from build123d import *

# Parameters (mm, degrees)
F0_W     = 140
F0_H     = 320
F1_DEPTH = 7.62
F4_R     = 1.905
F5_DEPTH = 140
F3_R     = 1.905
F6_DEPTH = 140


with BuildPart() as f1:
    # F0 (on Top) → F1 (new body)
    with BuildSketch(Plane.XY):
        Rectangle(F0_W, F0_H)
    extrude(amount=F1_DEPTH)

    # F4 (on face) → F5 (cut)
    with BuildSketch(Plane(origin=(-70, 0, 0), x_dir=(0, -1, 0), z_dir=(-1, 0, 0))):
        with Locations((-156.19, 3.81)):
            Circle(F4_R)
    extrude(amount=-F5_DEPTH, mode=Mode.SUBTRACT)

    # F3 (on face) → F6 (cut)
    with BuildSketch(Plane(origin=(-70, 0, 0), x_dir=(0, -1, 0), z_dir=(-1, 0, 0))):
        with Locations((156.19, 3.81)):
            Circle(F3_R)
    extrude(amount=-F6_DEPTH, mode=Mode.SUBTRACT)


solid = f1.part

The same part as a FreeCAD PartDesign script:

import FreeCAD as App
import Part
import Sketcher

V = App.Vector
Q = App.Units.Quantity

doc = App.newDocument("Part")
body = doc.addObject("PartDesign::Body", "Body")

sketch1 = body.newObject("Sketcher::SketchObject", "Sketch")
sketch1.AttachmentSupport = (doc.getObject("XY_Plane"), [""])
sketch1.MapMode = "FlatFace"
sketch1.addGeometry([
    Part.LineSegment(V(-70, 160, 0), V(-70, -160, 0)),
    Part.LineSegment(V(-70, -160, 0), V(70, -160, 0)),
    Part.LineSegment(V(70, -160, 0), V(70, 160, 0)),
    Part.LineSegment(V(70, 160, 0), V(-70, 160, 0)),
], False)
sketch1.addConstraint([
    Sketcher.Constraint("Coincident", 0, 2, 1, 1),
    Sketcher.Constraint("Coincident", 1, 2, 2, 1),
    Sketcher.Constraint("Coincident", 2, 2, 3, 1),
    Sketcher.Constraint("Coincident", 3, 2, 0, 1),
    Sketcher.Constraint("Vertical", 0),
    Sketcher.Constraint("Horizontal", 1),
    Sketcher.Constraint("Vertical", 2),
    Sketcher.Constraint("Horizontal", 3),
    Sketcher.Constraint("Symmetric", 0, 2, 2, 2, -1, 1),
    Sketcher.Constraint("DistanceX", 1, 1, 1, 2, Q("140 mm")),
    Sketcher.Constraint("DistanceY", 0, 2, 0, 1, Q("320 mm")),
])
pad1 = body.newObject("PartDesign::Pad", "Pad")
pad1.Profile = sketch1
pad1.Length = 7.62

sketch2 = body.newObject("Sketcher::SketchObject", "Sketch001")
sketch2.AttachmentSupport = (doc.getObject("YZ_Plane"), [""])
sketch2.MapMode = "FlatFace"
sketch2.AttachmentOffset = App.Placement(V(0, 0, -70), App.Rotation())
sketch2.addGeometry(Part.Circle(V(156.19, 3.81, 0), V(0, 0, 1), 1.905), False)
sketch2.addConstraint([
    Sketcher.Constraint("Diameter", 0, Q("3.81 mm")),
    Sketcher.Constraint("DistanceX", -1, 1, 0, 3, Q("156.19 mm")),
    Sketcher.Constraint("DistanceY", -1, 1, 0, 3, Q("3.81 mm")),
])
pocket1 = body.newObject("PartDesign::Pocket", "Pocket")
pocket1.Profile = sketch2
pocket1.Length = 140
pocket1.Reversed = True

sketch3 = body.newObject("Sketcher::SketchObject", "Sketch002")
sketch3.AttachmentSupport = (doc.getObject("YZ_Plane"), [""])
sketch3.MapMode = "FlatFace"
sketch3.AttachmentOffset = App.Placement(V(0, 0, -70), App.Rotation())
sketch3.addGeometry(Part.Circle(V(-156.19, 3.81, 0), V(0, 0, 1), 1.905), False)
sketch3.addConstraint([
    Sketcher.Constraint("Diameter", 0, Q("3.81 mm")),
    Sketcher.Constraint("DistanceX", 0, 3, -1, 1, Q("156.19 mm")),
    Sketcher.Constraint("DistanceY", -1, 1, 0, 3, Q("3.81 mm")),
])
pocket2 = body.newObject("PartDesign::Pocket", "Pocket001")
pocket2.Profile = sketch3
pocket2.Length = 140
pocket2.Reversed = True

doc.recompute()
